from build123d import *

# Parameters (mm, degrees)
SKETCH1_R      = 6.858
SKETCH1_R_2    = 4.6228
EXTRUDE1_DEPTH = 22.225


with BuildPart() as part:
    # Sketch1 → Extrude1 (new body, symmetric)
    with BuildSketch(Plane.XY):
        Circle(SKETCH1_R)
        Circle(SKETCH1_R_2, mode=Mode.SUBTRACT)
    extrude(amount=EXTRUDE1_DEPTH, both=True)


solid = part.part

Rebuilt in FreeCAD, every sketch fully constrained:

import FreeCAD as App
import Part
import Sketcher
from FreeCAD import Vector
Q = App.Units.Quantity

doc = App.newDocument("Part")
body = doc.addObject("PartDesign::Body", "Body")

sketch1 = doc.addObject("Sketcher::SketchObject", "Sketch")
body.addObject(sketch1)
sketch1.AttachmentSupport = (doc.XY_Plane, [""])
sketch1.MapMode = "FlatFace"
sketch1.addGeometry([
    Part.Circle(Vector(0, 0, 0), Vector(0, 0, 1), 6.9),
    Part.Circle(Vector(0, 0, 0), Vector(0, 0, 1), 4.6),
], False)
sketch1.addConstraint([
    Sketcher.Constraint("Coincident", 0, 3, -1, 1),
    Sketcher.Constraint("Coincident", 1, 3, -1, 1),
    Sketcher.Constraint("Diameter", 0, Q("0.54 in")),
    Sketcher.Constraint("Diameter", 1, Q("0.364 in")),
])
pad1 = doc.addObject("PartDesign::Pad", "Pad")
body.addObject(pad1)
pad1.Profile = sketch1
pad1.Length = Q("1.75 in")
pad1.Midplane = True

doc.recompute()
